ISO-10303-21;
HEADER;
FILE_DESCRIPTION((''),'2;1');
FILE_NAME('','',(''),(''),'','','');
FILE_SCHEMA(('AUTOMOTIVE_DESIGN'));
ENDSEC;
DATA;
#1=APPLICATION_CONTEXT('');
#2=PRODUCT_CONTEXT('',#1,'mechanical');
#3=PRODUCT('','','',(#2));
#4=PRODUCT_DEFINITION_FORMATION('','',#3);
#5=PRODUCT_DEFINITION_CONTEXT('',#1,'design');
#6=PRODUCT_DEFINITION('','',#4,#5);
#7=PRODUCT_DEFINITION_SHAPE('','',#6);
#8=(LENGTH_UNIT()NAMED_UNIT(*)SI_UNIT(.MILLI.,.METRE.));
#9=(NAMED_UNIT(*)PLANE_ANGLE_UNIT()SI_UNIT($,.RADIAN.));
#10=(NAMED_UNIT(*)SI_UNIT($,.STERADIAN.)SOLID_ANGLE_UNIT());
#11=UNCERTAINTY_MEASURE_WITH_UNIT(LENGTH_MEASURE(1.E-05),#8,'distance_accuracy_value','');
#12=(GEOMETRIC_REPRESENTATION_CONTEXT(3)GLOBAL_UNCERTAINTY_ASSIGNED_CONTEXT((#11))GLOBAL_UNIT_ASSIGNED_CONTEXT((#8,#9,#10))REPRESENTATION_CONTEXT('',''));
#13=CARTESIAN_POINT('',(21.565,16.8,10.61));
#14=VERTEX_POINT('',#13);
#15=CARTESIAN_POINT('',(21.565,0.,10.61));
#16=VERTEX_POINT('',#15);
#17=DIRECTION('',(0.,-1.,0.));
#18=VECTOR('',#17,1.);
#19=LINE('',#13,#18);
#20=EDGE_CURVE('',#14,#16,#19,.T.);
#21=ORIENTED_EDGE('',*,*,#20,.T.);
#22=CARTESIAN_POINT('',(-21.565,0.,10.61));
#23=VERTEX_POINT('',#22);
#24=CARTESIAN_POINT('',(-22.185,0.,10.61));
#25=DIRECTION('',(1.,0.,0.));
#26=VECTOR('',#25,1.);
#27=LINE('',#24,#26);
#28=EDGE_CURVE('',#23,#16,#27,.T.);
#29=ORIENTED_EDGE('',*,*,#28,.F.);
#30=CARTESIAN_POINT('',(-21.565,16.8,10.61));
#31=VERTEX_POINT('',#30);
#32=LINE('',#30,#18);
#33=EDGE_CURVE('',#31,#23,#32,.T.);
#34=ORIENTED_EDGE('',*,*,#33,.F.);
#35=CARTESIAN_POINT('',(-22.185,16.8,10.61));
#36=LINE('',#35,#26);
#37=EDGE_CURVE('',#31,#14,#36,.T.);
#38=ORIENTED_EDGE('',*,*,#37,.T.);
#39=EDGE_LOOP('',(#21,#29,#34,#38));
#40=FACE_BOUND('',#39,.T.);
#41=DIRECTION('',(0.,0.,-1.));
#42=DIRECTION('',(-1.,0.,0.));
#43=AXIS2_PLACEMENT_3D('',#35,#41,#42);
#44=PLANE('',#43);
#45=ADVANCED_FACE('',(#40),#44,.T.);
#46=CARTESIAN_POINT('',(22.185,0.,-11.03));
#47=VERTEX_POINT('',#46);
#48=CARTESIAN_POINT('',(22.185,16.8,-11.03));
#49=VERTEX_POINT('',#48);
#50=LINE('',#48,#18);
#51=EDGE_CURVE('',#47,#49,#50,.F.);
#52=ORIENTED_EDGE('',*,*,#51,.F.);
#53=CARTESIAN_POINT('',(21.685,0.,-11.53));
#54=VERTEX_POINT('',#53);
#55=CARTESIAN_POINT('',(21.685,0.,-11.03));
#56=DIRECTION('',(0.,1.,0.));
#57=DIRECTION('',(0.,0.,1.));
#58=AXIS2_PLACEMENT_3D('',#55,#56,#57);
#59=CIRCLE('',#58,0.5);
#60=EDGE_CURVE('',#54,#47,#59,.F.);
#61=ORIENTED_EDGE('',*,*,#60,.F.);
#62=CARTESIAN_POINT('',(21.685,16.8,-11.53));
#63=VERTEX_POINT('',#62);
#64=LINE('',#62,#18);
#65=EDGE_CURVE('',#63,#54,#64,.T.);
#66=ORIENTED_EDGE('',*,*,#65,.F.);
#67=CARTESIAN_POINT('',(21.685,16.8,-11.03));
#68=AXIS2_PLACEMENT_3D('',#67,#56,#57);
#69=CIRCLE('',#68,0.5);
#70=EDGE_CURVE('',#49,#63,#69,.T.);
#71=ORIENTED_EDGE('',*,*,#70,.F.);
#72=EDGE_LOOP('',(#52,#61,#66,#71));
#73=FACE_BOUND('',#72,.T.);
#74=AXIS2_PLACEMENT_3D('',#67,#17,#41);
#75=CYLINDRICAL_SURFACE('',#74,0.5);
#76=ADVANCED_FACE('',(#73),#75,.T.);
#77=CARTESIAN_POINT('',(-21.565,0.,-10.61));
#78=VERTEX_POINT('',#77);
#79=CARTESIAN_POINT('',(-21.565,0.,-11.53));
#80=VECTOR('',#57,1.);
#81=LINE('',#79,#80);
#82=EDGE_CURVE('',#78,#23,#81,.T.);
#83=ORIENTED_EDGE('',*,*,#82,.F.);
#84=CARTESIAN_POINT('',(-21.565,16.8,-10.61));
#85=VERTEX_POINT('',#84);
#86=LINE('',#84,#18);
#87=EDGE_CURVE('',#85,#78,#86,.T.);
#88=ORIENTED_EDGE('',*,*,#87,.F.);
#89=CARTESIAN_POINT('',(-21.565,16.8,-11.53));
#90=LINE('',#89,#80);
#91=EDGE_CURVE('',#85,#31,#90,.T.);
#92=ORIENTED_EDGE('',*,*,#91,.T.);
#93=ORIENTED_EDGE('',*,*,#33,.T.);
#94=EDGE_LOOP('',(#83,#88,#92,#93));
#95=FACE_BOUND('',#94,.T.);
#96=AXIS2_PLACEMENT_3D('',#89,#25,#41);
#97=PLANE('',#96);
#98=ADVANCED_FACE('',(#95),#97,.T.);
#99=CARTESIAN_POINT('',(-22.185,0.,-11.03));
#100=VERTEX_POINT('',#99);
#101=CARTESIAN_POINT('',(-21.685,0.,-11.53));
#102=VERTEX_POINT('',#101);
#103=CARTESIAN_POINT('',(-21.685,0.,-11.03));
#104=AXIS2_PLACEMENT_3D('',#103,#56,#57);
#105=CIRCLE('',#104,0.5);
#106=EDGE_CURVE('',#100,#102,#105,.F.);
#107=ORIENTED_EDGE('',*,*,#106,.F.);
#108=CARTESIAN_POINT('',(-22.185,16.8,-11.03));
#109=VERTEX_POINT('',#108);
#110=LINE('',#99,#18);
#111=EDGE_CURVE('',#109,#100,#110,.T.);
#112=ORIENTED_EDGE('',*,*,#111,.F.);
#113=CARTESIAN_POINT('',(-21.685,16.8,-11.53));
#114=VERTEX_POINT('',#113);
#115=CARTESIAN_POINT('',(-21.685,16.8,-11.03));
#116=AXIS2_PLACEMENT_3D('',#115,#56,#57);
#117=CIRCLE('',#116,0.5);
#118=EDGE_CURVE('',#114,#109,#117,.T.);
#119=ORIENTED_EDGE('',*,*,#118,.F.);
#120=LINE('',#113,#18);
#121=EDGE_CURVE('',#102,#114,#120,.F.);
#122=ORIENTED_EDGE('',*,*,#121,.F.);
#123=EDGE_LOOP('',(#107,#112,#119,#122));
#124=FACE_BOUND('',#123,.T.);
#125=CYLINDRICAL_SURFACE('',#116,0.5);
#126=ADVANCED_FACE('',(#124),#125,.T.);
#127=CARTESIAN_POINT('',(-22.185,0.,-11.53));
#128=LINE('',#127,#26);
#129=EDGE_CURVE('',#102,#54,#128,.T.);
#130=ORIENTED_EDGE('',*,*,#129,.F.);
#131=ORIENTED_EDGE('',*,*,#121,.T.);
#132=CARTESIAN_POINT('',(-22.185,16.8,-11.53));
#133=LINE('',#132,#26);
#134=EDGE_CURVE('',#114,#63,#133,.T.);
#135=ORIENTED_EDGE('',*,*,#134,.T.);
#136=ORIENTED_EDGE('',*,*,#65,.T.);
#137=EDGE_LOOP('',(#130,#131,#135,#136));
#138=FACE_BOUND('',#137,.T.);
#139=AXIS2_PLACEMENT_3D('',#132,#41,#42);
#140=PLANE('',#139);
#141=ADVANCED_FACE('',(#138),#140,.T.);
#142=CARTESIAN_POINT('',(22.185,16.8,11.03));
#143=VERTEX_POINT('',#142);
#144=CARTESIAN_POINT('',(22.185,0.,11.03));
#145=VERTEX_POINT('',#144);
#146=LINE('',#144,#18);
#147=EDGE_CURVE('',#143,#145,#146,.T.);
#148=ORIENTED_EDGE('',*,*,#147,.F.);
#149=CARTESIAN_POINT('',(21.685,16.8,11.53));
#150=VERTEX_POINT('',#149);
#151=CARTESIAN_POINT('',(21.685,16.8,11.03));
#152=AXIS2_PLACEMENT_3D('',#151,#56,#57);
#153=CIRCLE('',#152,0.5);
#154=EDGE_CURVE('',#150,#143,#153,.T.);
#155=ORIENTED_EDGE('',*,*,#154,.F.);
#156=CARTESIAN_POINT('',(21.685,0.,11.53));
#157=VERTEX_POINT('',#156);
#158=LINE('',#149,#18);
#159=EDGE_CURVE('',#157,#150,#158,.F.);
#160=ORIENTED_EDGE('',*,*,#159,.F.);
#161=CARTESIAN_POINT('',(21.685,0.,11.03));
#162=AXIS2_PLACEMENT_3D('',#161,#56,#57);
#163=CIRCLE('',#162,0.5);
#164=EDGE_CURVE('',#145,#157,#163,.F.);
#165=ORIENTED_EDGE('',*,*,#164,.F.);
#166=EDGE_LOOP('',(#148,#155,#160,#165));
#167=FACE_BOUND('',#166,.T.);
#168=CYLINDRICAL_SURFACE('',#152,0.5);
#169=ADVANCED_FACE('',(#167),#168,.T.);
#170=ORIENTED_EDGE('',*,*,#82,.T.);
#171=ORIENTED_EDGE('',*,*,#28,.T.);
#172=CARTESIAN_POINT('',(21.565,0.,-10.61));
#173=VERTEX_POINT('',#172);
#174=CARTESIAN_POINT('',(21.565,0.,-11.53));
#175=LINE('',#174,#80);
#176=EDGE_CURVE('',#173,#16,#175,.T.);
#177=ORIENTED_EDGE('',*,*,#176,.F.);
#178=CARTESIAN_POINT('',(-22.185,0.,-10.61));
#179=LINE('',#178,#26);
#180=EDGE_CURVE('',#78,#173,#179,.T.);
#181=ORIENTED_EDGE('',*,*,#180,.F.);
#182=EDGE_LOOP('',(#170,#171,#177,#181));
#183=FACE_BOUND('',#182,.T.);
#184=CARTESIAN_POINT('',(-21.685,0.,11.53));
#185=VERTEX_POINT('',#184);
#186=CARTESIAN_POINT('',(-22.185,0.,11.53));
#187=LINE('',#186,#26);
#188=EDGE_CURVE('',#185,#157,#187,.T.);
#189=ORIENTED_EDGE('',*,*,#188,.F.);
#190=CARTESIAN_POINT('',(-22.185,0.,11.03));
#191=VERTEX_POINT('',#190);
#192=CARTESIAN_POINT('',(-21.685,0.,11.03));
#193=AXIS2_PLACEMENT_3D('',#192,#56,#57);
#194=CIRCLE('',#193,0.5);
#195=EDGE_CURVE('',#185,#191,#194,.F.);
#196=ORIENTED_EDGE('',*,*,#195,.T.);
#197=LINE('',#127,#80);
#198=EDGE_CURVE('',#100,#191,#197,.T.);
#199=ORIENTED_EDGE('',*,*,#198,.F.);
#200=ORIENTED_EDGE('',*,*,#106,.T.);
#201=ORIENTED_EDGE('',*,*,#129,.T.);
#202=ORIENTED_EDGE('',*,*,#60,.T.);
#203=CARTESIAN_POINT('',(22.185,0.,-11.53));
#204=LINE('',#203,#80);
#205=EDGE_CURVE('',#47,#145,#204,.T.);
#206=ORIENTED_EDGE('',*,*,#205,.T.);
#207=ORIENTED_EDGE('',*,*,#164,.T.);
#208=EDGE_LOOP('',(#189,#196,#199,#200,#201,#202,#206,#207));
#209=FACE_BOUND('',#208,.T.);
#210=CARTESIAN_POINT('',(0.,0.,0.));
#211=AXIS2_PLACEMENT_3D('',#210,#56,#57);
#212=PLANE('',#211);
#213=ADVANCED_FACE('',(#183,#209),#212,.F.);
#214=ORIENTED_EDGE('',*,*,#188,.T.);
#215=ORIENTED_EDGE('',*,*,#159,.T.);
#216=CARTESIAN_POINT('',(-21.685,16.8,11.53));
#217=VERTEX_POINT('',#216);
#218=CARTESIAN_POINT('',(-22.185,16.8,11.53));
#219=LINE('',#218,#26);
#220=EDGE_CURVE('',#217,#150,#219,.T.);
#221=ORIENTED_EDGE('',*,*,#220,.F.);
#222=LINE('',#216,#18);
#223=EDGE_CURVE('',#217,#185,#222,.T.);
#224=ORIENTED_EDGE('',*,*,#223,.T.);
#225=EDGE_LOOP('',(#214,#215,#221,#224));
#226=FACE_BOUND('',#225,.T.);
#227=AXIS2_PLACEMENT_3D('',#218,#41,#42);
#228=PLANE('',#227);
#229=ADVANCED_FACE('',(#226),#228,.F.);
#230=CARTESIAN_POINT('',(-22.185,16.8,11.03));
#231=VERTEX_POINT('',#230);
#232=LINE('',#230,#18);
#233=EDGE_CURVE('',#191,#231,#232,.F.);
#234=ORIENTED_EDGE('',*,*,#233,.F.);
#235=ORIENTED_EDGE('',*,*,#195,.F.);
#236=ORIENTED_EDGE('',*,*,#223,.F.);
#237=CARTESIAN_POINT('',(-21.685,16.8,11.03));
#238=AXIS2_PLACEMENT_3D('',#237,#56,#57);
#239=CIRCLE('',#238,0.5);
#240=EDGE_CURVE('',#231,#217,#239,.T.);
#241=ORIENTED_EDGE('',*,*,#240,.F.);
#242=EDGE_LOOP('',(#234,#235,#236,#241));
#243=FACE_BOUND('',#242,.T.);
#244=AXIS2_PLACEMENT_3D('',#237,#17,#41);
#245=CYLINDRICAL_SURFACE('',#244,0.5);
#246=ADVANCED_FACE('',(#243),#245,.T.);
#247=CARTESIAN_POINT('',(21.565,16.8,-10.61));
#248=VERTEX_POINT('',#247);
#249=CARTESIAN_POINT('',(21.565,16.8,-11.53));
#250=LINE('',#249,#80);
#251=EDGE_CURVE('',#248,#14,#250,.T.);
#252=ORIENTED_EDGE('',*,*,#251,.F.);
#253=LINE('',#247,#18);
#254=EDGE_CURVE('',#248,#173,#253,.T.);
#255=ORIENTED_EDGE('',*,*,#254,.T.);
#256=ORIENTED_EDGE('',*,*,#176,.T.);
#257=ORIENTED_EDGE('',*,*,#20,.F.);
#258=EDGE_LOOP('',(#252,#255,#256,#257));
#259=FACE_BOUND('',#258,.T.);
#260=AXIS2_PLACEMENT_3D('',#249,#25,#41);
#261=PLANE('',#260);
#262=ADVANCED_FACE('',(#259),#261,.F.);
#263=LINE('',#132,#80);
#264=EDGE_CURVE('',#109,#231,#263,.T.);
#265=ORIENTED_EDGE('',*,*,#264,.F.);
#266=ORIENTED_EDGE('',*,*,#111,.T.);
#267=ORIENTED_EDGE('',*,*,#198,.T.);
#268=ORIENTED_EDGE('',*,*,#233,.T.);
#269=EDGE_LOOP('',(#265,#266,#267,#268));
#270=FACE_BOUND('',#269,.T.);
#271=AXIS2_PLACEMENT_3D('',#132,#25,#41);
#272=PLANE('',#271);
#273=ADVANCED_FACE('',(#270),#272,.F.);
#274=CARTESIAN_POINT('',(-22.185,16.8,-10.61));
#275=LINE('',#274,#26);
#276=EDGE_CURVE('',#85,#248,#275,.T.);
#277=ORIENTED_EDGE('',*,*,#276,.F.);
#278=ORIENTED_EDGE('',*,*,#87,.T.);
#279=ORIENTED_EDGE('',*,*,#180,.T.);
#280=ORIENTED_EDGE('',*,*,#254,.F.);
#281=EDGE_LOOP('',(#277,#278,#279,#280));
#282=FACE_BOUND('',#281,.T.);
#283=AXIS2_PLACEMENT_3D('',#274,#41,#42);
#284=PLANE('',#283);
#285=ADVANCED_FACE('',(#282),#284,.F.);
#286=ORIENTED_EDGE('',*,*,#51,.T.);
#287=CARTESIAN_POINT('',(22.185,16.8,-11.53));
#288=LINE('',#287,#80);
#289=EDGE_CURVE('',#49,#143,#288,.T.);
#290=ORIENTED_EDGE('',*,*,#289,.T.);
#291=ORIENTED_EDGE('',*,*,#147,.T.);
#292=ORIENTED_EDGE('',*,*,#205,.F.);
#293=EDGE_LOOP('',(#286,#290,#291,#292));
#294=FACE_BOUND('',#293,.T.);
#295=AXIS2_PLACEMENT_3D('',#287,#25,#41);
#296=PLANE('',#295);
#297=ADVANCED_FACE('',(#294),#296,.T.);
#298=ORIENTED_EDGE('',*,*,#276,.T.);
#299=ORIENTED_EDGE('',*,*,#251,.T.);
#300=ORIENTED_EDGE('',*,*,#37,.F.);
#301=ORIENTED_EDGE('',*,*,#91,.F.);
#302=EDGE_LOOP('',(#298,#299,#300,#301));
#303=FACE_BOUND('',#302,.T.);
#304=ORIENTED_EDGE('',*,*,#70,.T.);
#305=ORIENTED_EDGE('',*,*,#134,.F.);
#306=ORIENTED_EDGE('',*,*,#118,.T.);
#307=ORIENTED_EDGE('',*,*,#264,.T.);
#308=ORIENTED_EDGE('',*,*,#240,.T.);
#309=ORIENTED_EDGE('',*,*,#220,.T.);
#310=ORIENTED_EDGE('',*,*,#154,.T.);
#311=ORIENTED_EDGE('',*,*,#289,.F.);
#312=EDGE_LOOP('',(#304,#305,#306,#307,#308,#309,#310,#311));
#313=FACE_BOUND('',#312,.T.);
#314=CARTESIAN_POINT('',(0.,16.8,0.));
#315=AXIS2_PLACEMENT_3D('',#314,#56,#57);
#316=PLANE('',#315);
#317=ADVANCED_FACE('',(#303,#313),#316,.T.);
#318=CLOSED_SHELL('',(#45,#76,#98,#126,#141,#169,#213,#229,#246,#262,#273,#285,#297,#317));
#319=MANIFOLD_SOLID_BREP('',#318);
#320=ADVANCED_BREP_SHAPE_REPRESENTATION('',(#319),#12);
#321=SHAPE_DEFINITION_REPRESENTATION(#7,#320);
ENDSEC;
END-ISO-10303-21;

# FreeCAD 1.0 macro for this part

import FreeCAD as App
import Part
import Sketcher

V = App.Vector
Q = App.Units.Quantity


def edges_at(feature, points):
    """Names of the edges that pass closest to the given points."""
    edges = feature.Shape.Edges
    near = lambda p: min(range(len(edges)), key=lambda i: edges[i].distToShape(Part.Vertex(*p))[0])
    return sorted({f"Edge{near(p) + 1}" for p in points})


def faces_at(feature, points):
    """Names of the faces that lie closest to the given points."""
    faces = feature.Shape.Faces
    near = lambda p: min(range(len(faces)), key=lambda i: faces[i].distToShape(Part.Vertex(*p))[0])
    return sorted({f"Face{near(p) + 1}" for p in points})

doc = App.newDocument("Part")
body = doc.addObject("PartDesign::Body", "Body")

sketch1 = body.newObject("Sketcher::SketchObject", "Sketch")
sketch1.AttachmentSupport = (doc.getObject("XZ_Plane"), [""])
sketch1.MapMode = "FlatFace"
sketch1.addGeometry([
    Part.LineSegment(V(-22, -12, 0), V(-22, 12, 0)),
    Part.LineSegment(V(-22, 12, 0), V(22, 12, 0)),
    Part.LineSegment(V(22, 12, 0), V(22, -12, 0)),
    Part.LineSegment(V(22, -12, 0), V(-22, -12, 0)),
], False)
sketch1.addConstraint([
    Sketcher.Constraint("Coincident", 0, 2, 1, 1),
    Sketcher.Constraint("Coincident", 1, 2, 2, 1),
    Sketcher.Constraint("Coincident", 2, 2, 3, 1),
    Sketcher.Constraint("Coincident", 3, 2, 0, 1),
    Sketcher.Constraint("Vertical", 0),
    Sketcher.Constraint("Horizontal", 1),
    Sketcher.Constraint("Vertical", 2),
    Sketcher.Constraint("Horizontal", 3),
    Sketcher.Constraint("Symmetric", 0, 2, 2, 2, -1, 1),
    Sketcher.Constraint("DistanceX", 1, 1, 1, 2, Q("44.37 mm")),
    Sketcher.Constraint("DistanceY", 0, 1, 0, 2, Q("23.06 mm")),
])
pad1 = body.newObject("PartDesign::Pad", "Pad")
pad1.Profile = sketch1
pad1.Length = 16.8
pad1.Reversed = True
doc.recompute()

thickness = body.newObject("PartDesign::Thickness", "Thickness")
thickness.Base = (pad1, faces_at(pad1, [(0, 16.8, 0), (0, 0, 0)]))
thickness.Value = 1
thickness.Reversed = True
thickness.Join = "Intersection"

sketch2 = body.newObject("Sketcher::SketchObject", "Sketch001")
sketch2.AttachmentSupport = (doc.getObject("YZ_Plane"), [""])
sketch2.MapMode = "FlatFace"
sketch2.AttachmentOffset = App.Placement(V(0, 0, 21.185), App.Rotation())
sketch2.addGeometry([
    Part.LineSegment(V(0, -11, 0), V(17, -11, 0)),
    Part.LineSegment(V(17, -11, 0), V(17, 11, 0)),
    Part.LineSegment(V(17, 11, 0), V(0, 11, 0)),
    Part.LineSegment(V(0, 11, 0), V(0, -11, 0)),
], False)
sketch2.addConstraint([
    Sketcher.Constraint("Coincident", 0, 2, 1, 1),
    Sketcher.Constraint("Coincident", 1, 2, 2, 1),
    Sketcher.Constraint("Coincident", 2, 2, 3, 1),
    Sketcher.Constraint("Coincident", 3, 2, 0, 1),
    Sketcher.Constraint("Horizontal", 0),
    Sketcher.Constraint("Vertical", 1),
    Sketcher.Constraint("Horizontal", 2),
    Sketcher.Constraint("Vertical", 3),
    Sketcher.Constraint("Symmetric", 2, 2, 3, 2, -1, 1),
    Sketcher.Constraint("DistanceX", 0, 1, 0, 2, Q("16.8 mm")),
    Sketcher.Constraint("DistanceY", 1, 1, 1, 2, Q("21.06 mm")),
])
pocket1 = body.newObject("PartDesign::Pocket", "Pocket")
pocket1.Profile = sketch2
pocket1.Length = 0.38
pocket1.Reversed = True

sketch3 = body.newObject("Sketcher::SketchObject", "Sketch002")
sketch3.AttachmentSupport = (doc.getObject("YZ_Plane"), [""])
sketch3.MapMode = "FlatFace"
sketch3.AttachmentOffset = App.Placement(V(0, 0, -21.185), App.Rotation())
sketch3.addGeometry([
    Part.LineSegment(V(0, 11, 0), V(17, 11, 0)),
    Part.LineSegment(V(17, 11, 0), V(17, -11, 0)),
    Part.LineSegment(V(17, -11, 0), V(0, -11, 0)),
    Part.LineSegment(V(0, -11, 0), V(0, 11, 0)),
], False)
sketch3.addConstraint([
    Sketcher.Constraint("Coincident", 0, 2, 1, 1),
    Sketcher.Constraint("Coincident", 1, 2, 2, 1),
    Sketcher.Constraint("Coincident", 2, 2, 3, 1),
    Sketcher.Constraint("Coincident", 3, 2, 0, 1),
    Sketcher.Constraint("Horizontal", 0),
    Sketcher.Constraint("Vertical", 1),
    Sketcher.Constraint("Horizontal", 2),
    Sketcher.Constraint("Vertical", 3),
    Sketcher.Constraint("Symmetric", 2, 2, 3, 2, -1, 1),
    Sketcher.Constraint("DistanceX", 0, 1, 0, 2, Q("16.8 mm")),
    Sketcher.Constraint("DistanceY", 1, 2, 1, 1, Q("21.06 mm")),
])
pocket2 = body.newObject("PartDesign::Pocket", "Pocket001")
pocket2.Profile = sketch3
pocket2.Length = 0.38

sketch4 = body.newObject("Sketcher::SketchObject", "Sketch003")
sketch4.AttachmentSupport = (doc.getObject("XY_Plane"), [""])
sketch4.MapMode = "FlatFace"
sketch4.AttachmentOffset = App.Placement(V(0, 0, 10.53), App.Rotation())
sketch4.addGeometry([
    Part.LineSegment(V(-22, 17, 0), V(-22, 0, 0)),
    Part.LineSegment(V(-22, 0, 0), V(22, 0, 0)),
    Part.LineSegment(V(22, 0, 0), V(22, 17, 0)),
    Part.LineSegment(V(22, 17, 0), V(-22, 17, 0)),
], False)
sketch4.addConstraint([
    Sketcher.Constraint("Coincident", 0, 2, 1, 1),
    Sketcher.Constraint("Coincident", 1, 2, 2, 1),
    Sketcher.Constraint("Coincident", 2, 2, 3, 1),
    Sketcher.Constraint("Coincident", 3, 2, 0, 1),
    Sketcher.Constraint("Vertical", 0),
    Sketcher.Constraint("Horizontal", 1),
    Sketcher.Constraint("Vertical", 2),
    Sketcher.Constraint("Horizontal", 3),
    Sketcher.Constraint("Symmetric", 0, 2, 1, 2, -1, 1),
    Sketcher.Constraint("DistanceY", 0, 2, 0, 1, Q("16.8 mm")),
    Sketcher.Constraint("DistanceX", 1, 1, 1, 2, Q("43.13 mm")),
])
pocket3 = body.newObject("PartDesign::Pocket", "Pocket002")
pocket3.Profile = sketch4
pocket3.Length = 0.08
pocket3.Reversed = True

sketch5 = body.newObject("Sketcher::SketchObject", "Sketch004")
sketch5.AttachmentSupport = (doc.getObject("XY_Plane"), [""])
sketch5.MapMode = "FlatFace"
sketch5.AttachmentOffset = App.Placement(V(0, 0, -10.53), App.Rotation())
sketch5.addGeometry([
    Part.LineSegment(V(22, 17, 0), V(22, 0, 0)),
    Part.LineSegment(V(22, 0, 0), V(-22, 0, 0)),
    Part.LineSegment(V(-22, 0, 0), V(-22, 17, 0)),
    Part.LineSegment(V(-22, 17, 0), V(22, 17, 0)),
], False)
sketch5.addConstraint([
    Sketcher.Constraint("Coincident", 0, 2, 1, 1),
    Sketcher.Constraint("Coincident", 1, 2, 2, 1),
    Sketcher.Constraint("Coincident", 2, 2, 3, 1),
    Sketcher.Constraint("Coincident", 3, 2, 0, 1),
    Sketcher.Constraint("Vertical", 0),
    Sketcher.Constraint("Horizontal", 1),
    Sketcher.Constraint("Vertical", 2),
    Sketcher.Constraint("Horizontal", 3),
    Sketcher.Constraint("Symmetric", 0, 2, 1, 2, -1, 1),
    Sketcher.Constraint("DistanceY", 0, 2, 0, 1, Q("16.8 mm")),
    Sketcher.Constraint("DistanceX", 1, 2, 1, 1, Q("43.13 mm")),
])
pocket4 = body.newObject("PartDesign::Pocket", "Pocket003")
pocket4.Profile = sketch5
pocket4.Length = 0.08
doc.recompute()

fillet = body.newObject("PartDesign::Fillet", "Fillet")
fillet.Base = (pocket4, edges_at(pocket4, [
    (-22.185, 8.4, -11.53),
    (22.185, 8.4, -11.53),
    (22.185, 8.4, 11.53),
    (-22.185, 8.4, 11.53),
]))
fillet.Radius = 0.5

doc.recompute()
